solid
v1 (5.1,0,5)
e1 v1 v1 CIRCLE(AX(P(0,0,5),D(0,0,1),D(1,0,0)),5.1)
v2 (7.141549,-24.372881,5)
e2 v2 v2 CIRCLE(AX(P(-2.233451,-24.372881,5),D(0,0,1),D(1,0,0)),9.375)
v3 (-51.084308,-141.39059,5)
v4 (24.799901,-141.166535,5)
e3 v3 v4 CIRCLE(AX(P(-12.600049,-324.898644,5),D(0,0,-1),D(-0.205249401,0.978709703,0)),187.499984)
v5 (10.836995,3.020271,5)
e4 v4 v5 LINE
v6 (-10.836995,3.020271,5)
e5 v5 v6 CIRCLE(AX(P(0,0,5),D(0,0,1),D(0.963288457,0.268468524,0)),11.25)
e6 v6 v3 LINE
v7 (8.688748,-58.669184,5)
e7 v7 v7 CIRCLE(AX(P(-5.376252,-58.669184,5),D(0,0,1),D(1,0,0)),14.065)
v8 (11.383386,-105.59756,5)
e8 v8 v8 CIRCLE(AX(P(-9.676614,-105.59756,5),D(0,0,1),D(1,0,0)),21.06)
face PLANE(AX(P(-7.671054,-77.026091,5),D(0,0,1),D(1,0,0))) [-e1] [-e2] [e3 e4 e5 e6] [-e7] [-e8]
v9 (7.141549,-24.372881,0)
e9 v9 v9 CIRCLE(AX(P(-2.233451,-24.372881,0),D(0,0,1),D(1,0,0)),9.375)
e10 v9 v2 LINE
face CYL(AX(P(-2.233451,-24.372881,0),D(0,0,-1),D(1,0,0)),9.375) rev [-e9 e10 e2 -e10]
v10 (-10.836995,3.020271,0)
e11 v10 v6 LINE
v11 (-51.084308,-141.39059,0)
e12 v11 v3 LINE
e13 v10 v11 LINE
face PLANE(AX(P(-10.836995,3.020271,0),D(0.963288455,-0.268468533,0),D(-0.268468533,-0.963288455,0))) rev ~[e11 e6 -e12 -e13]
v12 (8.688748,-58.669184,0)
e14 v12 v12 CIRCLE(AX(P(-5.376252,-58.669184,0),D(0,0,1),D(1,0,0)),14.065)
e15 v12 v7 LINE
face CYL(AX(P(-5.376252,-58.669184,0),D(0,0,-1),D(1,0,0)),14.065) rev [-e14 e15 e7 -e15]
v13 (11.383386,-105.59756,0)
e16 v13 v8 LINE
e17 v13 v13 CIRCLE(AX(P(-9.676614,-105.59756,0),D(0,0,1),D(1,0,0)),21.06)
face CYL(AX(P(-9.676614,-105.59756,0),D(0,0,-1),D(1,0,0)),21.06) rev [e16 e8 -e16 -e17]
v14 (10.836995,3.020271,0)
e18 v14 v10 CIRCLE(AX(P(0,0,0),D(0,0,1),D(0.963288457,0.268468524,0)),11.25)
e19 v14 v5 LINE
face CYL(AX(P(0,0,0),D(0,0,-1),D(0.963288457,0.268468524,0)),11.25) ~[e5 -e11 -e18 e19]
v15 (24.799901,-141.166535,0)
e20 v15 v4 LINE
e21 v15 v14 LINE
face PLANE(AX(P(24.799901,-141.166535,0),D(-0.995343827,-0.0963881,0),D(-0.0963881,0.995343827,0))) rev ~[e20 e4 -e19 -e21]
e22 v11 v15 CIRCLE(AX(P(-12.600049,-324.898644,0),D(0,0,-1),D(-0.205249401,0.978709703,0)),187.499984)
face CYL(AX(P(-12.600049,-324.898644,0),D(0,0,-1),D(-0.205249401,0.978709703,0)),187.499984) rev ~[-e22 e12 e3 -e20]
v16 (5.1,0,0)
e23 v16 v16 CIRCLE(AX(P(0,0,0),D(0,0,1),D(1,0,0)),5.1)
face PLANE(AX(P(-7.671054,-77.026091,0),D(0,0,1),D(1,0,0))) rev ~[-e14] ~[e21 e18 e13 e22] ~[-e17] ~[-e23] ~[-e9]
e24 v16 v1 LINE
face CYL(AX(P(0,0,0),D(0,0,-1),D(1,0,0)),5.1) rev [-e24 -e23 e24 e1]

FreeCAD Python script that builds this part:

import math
import FreeCAD as App
import Part
import Sketcher

V = App.Vector
Q = App.Units.Quantity

doc = App.newDocument("Part")
params = doc.addObject("Spreadsheet::Sheet", "Params")
for row, (alias, value) in enumerate([
    ("sketch1_diameter", "10.2 mm"),
    ("sketch1_diameter2", "42.12 mm"),
    ("sketch1_diameter3", "28.13 mm"),
    ("sketch1_diameter4", "18.75 mm"),
    ("sketch1_radius", "11.25 mm"),
    ("pad1_length", "5 mm"),
], start=1):
    params.set(f"A{row}", alias)
    params.set(f"B{row}", "=" + value)
    params.setAlias(f"B{row}", alias)

body = doc.addObject("PartDesign::Body", "Body")

# Sketch on XY plane
sketch1 = doc.addObject("Sketcher::SketchObject", "Sketch")
body.addObject(sketch1)
sketch1.AttachmentSupport = (doc.XY_Plane, [""])
sketch1.MapMode = "FlatFace"
sketch1.addGeometry([
    Part.LineSegment(V(25, -141, 0), V(11, 3, 0)),  # 0
    Part.ArcOfCircle(Part.Circle(V(0, 0, 0), V(0, 0, 1), 11), math.radians(16), math.radians(164)),  # 1
    Part.LineSegment(V(-11, 3, 0), V(-51, -141, 0)),  # 2
    Part.ArcOfCircle(Part.Circle(V(-13, -325, 0), V(0, 0, 1), 187), math.radians(78), math.radians(102)),  # 3
    Part.Circle(V(-10, -106, 0), V(0, 0, 1), 21),  # 4
    Part.Circle(V(-5, -59, 0), V(0, 0, 1), 14),  # 5
    Part.Circle(V(-2, -24, 0), V(0, 0, 1), 9),  # 6
    Part.Circle(V(0, 0, 0), V(0, 0, 1), 5),  # 7
], False)
sketch1.addConstraint([
    Sketcher.Constraint("Coincident", 0, 2, 1, 1),
    Sketcher.Constraint("Tangent", 1, 2, 2, 1),
    Sketcher.Constraint("Coincident", 2, 2, 3, 2),
    Sketcher.Constraint("Coincident", 3, 1, 0, 1),
    Sketcher.Constraint("Coincident", 1, 3, -1, 1),
    Sketcher.Constraint("Coincident", 7, 3, -1, 1),
    Sketcher.Constraint("Horizontal", 0, 2, 1, 2),
    Sketcher.Constraint("Diameter", 7, Q("10.2 mm")),
    Sketcher.Constraint("Diameter", 4, Q("42.12 mm")),
    Sketcher.Constraint("Diameter", 5, Q("28.13 mm")),
    Sketcher.Constraint("Diameter", 6, Q("18.75 mm")),
    Sketcher.Constraint("Radius", 1, Q("11.25 mm")),
    Sketcher.Constraint("Radius", 3, Q("187.499984 mm")),
    Sketcher.Constraint("DistanceX", -1, 1, 3, 1, Q("24.799901 mm")),
    Sketcher.Constraint("DistanceX", 5, 3, 6, 3, Q("3.142801 mm")),
    Sketcher.Constraint("DistanceX", 3, 3, -1, 1, Q("12.600049 mm")),
    Sketcher.Constraint("DistanceY", 4, 3, -1, 1, Q("105.59756 mm")),
    Sketcher.Constraint("DistanceX", 6, 3, -1, 1, Q("2.233451 mm")),
    Sketcher.Constraint("DistanceY", 6, 3, -1, 1, Q("24.372881 mm")),
    Sketcher.Constraint("DistanceY", -1, 1, 0, 2, Q("3.020271 mm")),
    Sketcher.Constraint("DistanceY", 2, 2, -1, 1, Q("141.39059 mm")),
    Sketcher.Constraint("DistanceY", 3, 3, 5, 3, Q("266.22946 mm")),
    Sketcher.Constraint("DistanceX", 4, 3, 0, 2, Q("20.513609 mm")),
])
sketch1.setExpression("Constraints[7]", "Params.sketch1_diameter")
sketch1.setExpression("Constraints[8]", "Params.sketch1_diameter2")
sketch1.setExpression("Constraints[9]", "Params.sketch1_diameter3")
sketch1.setExpression("Constraints[10]", "Params.sketch1_diameter4")
sketch1.setExpression("Constraints[11]", "Params.sketch1_radius")
pad1 = doc.addObject("PartDesign::Pad", "Pad")
body.addObject(pad1)
pad1.Profile = sketch1
pad1.setExpression("Length", "Params.pad1_length")

doc.recompute()
